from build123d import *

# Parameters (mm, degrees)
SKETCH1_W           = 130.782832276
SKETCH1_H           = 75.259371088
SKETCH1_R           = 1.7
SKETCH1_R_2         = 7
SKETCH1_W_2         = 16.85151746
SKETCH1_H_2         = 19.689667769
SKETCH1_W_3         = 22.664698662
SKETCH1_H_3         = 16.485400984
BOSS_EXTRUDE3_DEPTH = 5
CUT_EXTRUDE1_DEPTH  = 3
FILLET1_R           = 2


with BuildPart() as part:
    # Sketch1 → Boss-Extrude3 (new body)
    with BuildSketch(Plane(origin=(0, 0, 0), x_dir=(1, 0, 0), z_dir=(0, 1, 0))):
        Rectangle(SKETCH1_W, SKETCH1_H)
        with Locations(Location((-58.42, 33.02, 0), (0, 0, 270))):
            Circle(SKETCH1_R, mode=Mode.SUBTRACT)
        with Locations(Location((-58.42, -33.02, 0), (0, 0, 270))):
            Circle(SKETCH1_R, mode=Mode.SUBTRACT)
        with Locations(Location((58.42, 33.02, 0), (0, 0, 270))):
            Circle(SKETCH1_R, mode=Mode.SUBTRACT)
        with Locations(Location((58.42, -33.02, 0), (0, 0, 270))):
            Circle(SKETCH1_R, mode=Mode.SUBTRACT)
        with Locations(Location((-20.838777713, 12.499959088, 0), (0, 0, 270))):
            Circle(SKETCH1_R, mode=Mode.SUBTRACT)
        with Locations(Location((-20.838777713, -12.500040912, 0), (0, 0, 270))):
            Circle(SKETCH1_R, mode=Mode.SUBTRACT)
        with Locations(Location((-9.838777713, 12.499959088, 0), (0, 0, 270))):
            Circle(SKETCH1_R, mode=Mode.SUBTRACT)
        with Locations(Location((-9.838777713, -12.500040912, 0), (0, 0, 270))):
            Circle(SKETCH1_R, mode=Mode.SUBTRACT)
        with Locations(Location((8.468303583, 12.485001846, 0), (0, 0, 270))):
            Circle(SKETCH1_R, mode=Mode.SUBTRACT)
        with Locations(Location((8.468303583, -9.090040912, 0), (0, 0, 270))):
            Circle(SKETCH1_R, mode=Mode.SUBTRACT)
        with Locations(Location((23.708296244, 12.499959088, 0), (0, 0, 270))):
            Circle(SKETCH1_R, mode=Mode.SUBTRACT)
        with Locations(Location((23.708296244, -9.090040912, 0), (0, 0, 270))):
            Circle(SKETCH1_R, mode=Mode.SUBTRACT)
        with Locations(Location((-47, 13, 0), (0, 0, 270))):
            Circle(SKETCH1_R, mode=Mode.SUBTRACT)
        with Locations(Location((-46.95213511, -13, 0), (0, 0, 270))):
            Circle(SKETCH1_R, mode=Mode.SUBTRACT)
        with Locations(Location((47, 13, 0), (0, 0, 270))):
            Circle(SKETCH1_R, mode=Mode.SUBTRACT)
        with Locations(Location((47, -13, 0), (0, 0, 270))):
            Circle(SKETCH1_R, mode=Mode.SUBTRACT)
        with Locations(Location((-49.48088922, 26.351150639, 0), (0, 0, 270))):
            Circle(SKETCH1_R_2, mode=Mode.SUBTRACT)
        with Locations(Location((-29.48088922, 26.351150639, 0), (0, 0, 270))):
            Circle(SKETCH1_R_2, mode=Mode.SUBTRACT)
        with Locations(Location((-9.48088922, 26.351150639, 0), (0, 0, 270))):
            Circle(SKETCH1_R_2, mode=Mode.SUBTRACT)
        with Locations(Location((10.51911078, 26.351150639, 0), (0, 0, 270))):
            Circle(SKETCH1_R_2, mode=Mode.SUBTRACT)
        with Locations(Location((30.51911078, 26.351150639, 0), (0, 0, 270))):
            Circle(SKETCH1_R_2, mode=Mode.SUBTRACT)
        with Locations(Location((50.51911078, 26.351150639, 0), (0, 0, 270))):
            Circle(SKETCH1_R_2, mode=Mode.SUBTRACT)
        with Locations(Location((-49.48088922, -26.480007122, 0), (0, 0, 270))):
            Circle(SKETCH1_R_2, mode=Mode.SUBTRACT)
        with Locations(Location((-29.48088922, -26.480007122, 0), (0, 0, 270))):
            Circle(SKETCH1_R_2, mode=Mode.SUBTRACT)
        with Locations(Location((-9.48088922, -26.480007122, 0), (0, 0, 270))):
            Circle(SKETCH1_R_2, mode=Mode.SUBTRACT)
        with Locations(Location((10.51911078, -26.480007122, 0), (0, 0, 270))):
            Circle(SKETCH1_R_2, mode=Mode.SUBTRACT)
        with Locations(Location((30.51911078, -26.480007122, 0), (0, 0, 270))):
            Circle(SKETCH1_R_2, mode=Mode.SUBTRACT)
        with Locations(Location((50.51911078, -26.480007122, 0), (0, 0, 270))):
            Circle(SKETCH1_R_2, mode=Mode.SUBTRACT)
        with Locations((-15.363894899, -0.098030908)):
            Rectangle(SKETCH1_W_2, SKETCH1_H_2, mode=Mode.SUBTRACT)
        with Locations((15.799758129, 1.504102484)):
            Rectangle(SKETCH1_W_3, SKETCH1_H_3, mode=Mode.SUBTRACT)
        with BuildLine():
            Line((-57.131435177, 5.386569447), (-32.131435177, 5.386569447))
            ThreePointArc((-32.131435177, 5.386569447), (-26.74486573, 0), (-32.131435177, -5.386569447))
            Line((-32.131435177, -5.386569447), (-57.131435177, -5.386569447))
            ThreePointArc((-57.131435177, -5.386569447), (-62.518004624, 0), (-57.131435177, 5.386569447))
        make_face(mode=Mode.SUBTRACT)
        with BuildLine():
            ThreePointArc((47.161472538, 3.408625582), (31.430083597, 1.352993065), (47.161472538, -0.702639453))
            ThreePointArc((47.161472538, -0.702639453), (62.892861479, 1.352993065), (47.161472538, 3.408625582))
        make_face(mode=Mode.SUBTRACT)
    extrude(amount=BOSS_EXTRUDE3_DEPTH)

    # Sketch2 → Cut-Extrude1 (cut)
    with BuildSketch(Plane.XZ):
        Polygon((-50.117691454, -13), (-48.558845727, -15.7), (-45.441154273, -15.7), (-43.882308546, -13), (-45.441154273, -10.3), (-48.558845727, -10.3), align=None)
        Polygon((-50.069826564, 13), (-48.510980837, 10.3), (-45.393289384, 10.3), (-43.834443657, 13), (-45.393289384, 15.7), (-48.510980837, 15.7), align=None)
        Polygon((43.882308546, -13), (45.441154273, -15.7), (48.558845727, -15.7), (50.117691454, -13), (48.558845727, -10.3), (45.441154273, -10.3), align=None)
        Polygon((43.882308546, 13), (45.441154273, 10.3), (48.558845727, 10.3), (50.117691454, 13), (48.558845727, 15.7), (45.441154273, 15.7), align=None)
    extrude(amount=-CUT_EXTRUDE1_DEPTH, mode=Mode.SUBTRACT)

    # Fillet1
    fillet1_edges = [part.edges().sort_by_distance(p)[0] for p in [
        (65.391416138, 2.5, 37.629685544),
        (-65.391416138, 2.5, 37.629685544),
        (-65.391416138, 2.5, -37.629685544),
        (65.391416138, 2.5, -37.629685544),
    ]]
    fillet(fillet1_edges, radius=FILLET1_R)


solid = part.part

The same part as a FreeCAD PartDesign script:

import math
import FreeCAD as App
import Part
import Sketcher
Q = App.Units.Quantity


def edges_at(feature, points):
    """Names of the edges that pass closest to the given points."""
    edges = feature.Shape.Edges
    near = lambda p: min(range(len(edges)), key=lambda i: edges[i].distToShape(Part.Vertex(*p))[0])
    return sorted({f"Edge{near(p) + 1}" for p in points})


def add_polygon(sketch, points):
    """Adds a closed chain of lines whose ends are joined by coincident constraints."""
    first, n = sketch.GeometryCount, len(points)
    for a, b in zip(points, points[1:] + points[:1]):
        sketch.addGeometry(Part.LineSegment(App.Vector(*a, 0), App.Vector(*b, 0)), False)
    for i in range(n):
        sketch.addConstraint(Sketcher.Constraint("Coincident", first + i, 2, first + (i + 1) % n, 1))

doc = App.newDocument("Part")
body = doc.addObject("PartDesign::Body", "Body")

# Sketch on XZ plane
sketch1 = body.newObject("Sketcher::SketchObject", "Sketch")
sketch1.AttachmentSupport = (doc.getObject("XZ_Plane"), [""])
sketch1.MapMode = "FlatFace"
add_polygon(sketch1, [(-65.391416, -37.629686), (-65.391416, 37.629686), (65.391416, 37.629686), (65.391416, -37.629686)])  # lines 0-3
sketch1.addGeometry(Part.Circle(App.Vector(-58.42, 33.02, 0), App.Vector(0, 0, 1), 1.7), False)  # 4
sketch1.addGeometry(Part.Circle(App.Vector(-49.480889, 26.480007, 0), App.Vector(0, 0, 1), 7), False)  # 5
sketch1.addGeometry(Part.Circle(App.Vector(-29.480889, 26.480007, 0), App.Vector(0, 0, 1), 7), False)  # 6
sketch1.addGeometry(Part.Circle(App.Vector(-9.480889, 26.480007, 0), App.Vector(0, 0, 1), 7), False)  # 7
sketch1.addGeometry(Part.Circle(App.Vector(-46.952135, 13, 0), App.Vector(0, 0, 1), 1.7), False)  # 8
sketch1.addGeometry(Part.Circle(App.Vector(-20.838778, 12.500041, 0), App.Vector(0, 0, 1), 1.7), False)  # 9
sketch1.addGeometry(Part.Circle(App.Vector(-9.838778, 12.500041, 0), App.Vector(0, 0, 1), 1.7), False)  # 10
add_polygon(sketch1, [(-6.938136, 9.942865), (-23.789654, 9.942865), (-23.789654, -9.746803), (-6.938136, -9.746803)])  # lines 11-14
sketch1.addGeometry(Part.Circle(App.Vector(10.519111, 26.480007, 0), App.Vector(0, 0, 1), 7), False)  # 15
sketch1.addGeometry(Part.Circle(App.Vector(30.519111, 26.480007, 0), App.Vector(0, 0, 1), 7), False)  # 16
sketch1.addGeometry(Part.Circle(App.Vector(58.42, 33.02, 0), App.Vector(0, 0, 1), 1.7), False)  # 17
sketch1.addGeometry(Part.Circle(App.Vector(50.519111, 26.480007, 0), App.Vector(0, 0, 1), 7), False)  # 18
sketch1.addGeometry(Part.Circle(App.Vector(8.468304, 9.090041, 0), App.Vector(0, 0, 1), 1.7), False)  # 19
sketch1.addGeometry(Part.Circle(App.Vector(23.708296, 9.090041, 0), App.Vector(0, 0, 1), 1.7), False)  # 20
sketch1.addGeometry(Part.Circle(App.Vector(47, 13, 0), App.Vector(0, 0, 1), 1.7), False)  # 21
sketch1.addGeometry(Part.ArcOfCircle(Part.Circle(App.Vector(-57.131435, 0, 0), App.Vector(0, 0, 1), 5.386569), math.radians(90), math.radians(270)), False)  # 22
sketch1.addGeometry(Part.LineSegment(App.Vector(-57.131435, -5.386569, 0), App.Vector(-32.131435, -5.386569, 0)), False)  # 23
sketch1.addGeometry(Part.ArcOfCircle(Part.Circle(App.Vector(-32.131435, 0, 0), App.Vector(0, 0, 1), 5.386569), math.radians(-90), math.radians(90)), False)  # 24
sketch1.addGeometry(Part.LineSegment(App.Vector(-32.131435, 5.386569, 0), App.Vector(-57.131435, 5.386569, 0)), False)  # 25
sketch1.addGeometry(Part.Circle(App.Vector(-47, -13, 0), App.Vector(0, 0, 1), 1.7), False)  # 26
sketch1.addGeometry(Part.Circle(App.Vector(-20.838778, -12.499959, 0), App.Vector(0, 0, 1), 1.7), False)  # 27
sketch1.addGeometry(Part.Circle(App.Vector(-9.838778, -12.499959, 0), App.Vector(0, 0, 1), 1.7), False)  # 28
sketch1.addGeometry(Part.Circle(App.Vector(-49.480889, -26.351151, 0), App.Vector(0, 0, 1), 7), False)  # 29
sketch1.addGeometry(Part.Circle(App.Vector(-58.42, -33.02, 0), App.Vector(0, 0, 1), 1.7), False)  # 30
sketch1.addGeometry(Part.Circle(App.Vector(-29.480889, -26.351151, 0), App.Vector(0, 0, 1), 7), False)  # 31
sketch1.addGeometry(Part.Circle(App.Vector(-9.480889, -26.351151, 0), App.Vector(0, 0, 1), 7), False)  # 32
add_polygon(sketch1, [(27.132107, 6.738598), (4.467409, 6.738598), (4.467409, -9.746803), (27.132107, -9.746803)])  # lines 33-36
sketch1.addGeometry(Part.Circle(App.Vector(8.468304, -12.485002, 0), App.Vector(0, 0, 1), 1.7), False)  # 37
sketch1.addGeometry(Part.Circle(App.Vector(23.708296, -12.499959, 0), App.Vector(0, 0, 1), 1.7), False)  # 38
sketch1.addGeometry(Part.ArcOfCircle(Part.Circle(App.Vector(39.430084, -1.352993, 0), App.Vector(0, 0, 1), 8), math.radians(14.889404), math.radians(345.110596)), False)  # 39
sketch1.addGeometry(Part.ArcOfCircle(Part.Circle(App.Vector(54.892861, -1.352993, 0), App.Vector(0, 0, 1), 8), math.radians(-165.110596), math.radians(165.110596)), False)  # 40
sketch1.addGeometry(Part.Circle(App.Vector(47, -13, 0), App.Vector(0, 0, 1), 1.7), False)  # 41
sketch1.addGeometry(Part.Circle(App.Vector(10.519111, -26.351151, 0), App.Vector(0, 0, 1), 7), False)  # 42
sketch1.addGeometry(Part.Circle(App.Vector(30.519111, -26.351151, 0), App.Vector(0, 0, 1), 7), False)  # 43
sketch1.addGeometry(Part.Circle(App.Vector(50.519111, -26.351151, 0), App.Vector(0, 0, 1), 7), False)  # 44
sketch1.addGeometry(Part.Circle(App.Vector(58.42, -33.02, 0), App.Vector(0, 0, 1), 1.7), False)  # 45
sketch1.addConstraint(Sketcher.Constraint("Tangent", 22, 2, 23, 1))
sketch1.addConstraint(Sketcher.Constraint("Tangent", 23, 2, 24, 1))
sketch1.addConstraint(Sketcher.Constraint("Tangent", 24, 2, 25, 1))
sketch1.addConstraint(Sketcher.Constraint("Tangent", 25, 2, 22, 1))
sketch1.addConstraint(Sketcher.Constraint("Coincident", 39, 1, 40, 2))
sketch1.addConstraint(Sketcher.Constraint("Coincident", 40, 1, 39, 2))
sketch1.addConstraint(Sketcher.Constraint("Vertical", 0))
sketch1.addConstraint(Sketcher.Constraint("Horizontal", 1))
sketch1.addConstraint(Sketcher.Constraint("Vertical", 2))
sketch1.addConstraint(Sketcher.Constraint("Horizontal", 3))
sketch1.addConstraint(Sketcher.Constraint("Horizontal", 11))
sketch1.addConstraint(Sketcher.Constraint("Vertical", 12))
sketch1.addConstraint(Sketcher.Constraint("Horizontal", 13))
sketch1.addConstraint(Sketcher.Constraint("Vertical", 14))
sketch1.addConstraint(Sketcher.Constraint("Horizontal", 23))
sketch1.addConstraint(Sketcher.Constraint("Horizontal", 25))
sketch1.addConstraint(Sketcher.Constraint("Horizontal", 33))
sketch1.addConstraint(Sketcher.Constraint("Vertical", 34))
sketch1.addConstraint(Sketcher.Constraint("Horizontal", 35))
sketch1.addConstraint(Sketcher.Constraint("Vertical", 36))
sketch1.addConstraint(Sketcher.Constraint("Equal", 5, 6))
sketch1.addConstraint(Sketcher.Constraint("Equal", 6, 7))
sketch1.addConstraint(Sketcher.Constraint("Equal", 4, 8))
sketch1.addConstraint(Sketcher.Constraint("Equal", 8, 9))
sketch1.addConstraint(Sketcher.Constraint("Equal", 9, 10))
sketch1.addConstraint(Sketcher.Constraint("Equal", 7, 15))
sketch1.addConstraint(Sketcher.Constraint("Equal", 15, 16))
sketch1.addConstraint(Sketcher.Constraint("Equal", 10, 17))
sketch1.addConstraint(Sketcher.Constraint("Equal", 16, 18))
sketch1.addConstraint(Sketcher.Constraint("Equal", 17, 19))
sketch1.addConstraint(Sketcher.Constraint("Equal", 19, 20))
sketch1.addConstraint(Sketcher.Constraint("Equal", 20, 21))
sketch1.addConstraint(Sketcher.Constraint("Equal", 21, 26))
sketch1.addConstraint(Sketcher.Constraint("Equal", 26, 27))
sketch1.addConstraint(Sketcher.Constraint("Equal", 27, 28))
sketch1.addConstraint(Sketcher.Constraint("Equal", 18, 29))
sketch1.addConstraint(Sketcher.Constraint("Equal", 28, 30))
sketch1.addConstraint(Sketcher.Constraint("Equal", 29, 31))
sketch1.addConstraint(Sketcher.Constraint("Equal", 31, 32))
sketch1.addConstraint(Sketcher.Constraint("Equal", 30, 37))
sketch1.addConstraint(Sketcher.Constraint("Equal", 37, 38))
sketch1.addConstraint(Sketcher.Constraint("Equal", 39, 40))
sketch1.addConstraint(Sketcher.Constraint("Equal", 38, 41))
sketch1.addConstraint(Sketcher.Constraint("Equal", 32, 42))
sketch1.addConstraint(Sketcher.Constraint("Equal", 42, 43))
sketch1.addConstraint(Sketcher.Constraint("Equal", 43, 44))
sketch1.addConstraint(Sketcher.Constraint("Equal", 41, 45))
sketch1.addConstraint(Sketcher.Constraint("Symmetric", 21, 3, 26, 3, -1, 1))
sketch1.addConstraint(Sketcher.Constraint("Symmetric", 17, 3, 30, 3, -1, 1))
sketch1.addConstraint(Sketcher.Constraint("Symmetric", 4, 3, 45, 3, -1, 1))
sketch1.addConstraint(Sketcher.Constraint("Symmetric", 0, 2, 2, 2, -1, 1))
sketch1.addConstraint(Sketcher.Constraint("Symmetric", 4, 3, 17, 3, -2))
sketch1.addConstraint(Sketcher.Constraint("Symmetric", 26, 3, 41, 3, -2))
sketch1.addConstraint(Sketcher.Constraint("PointOnObject", 22, 3, -1))
sketch1.addConstraint(Sketcher.Constraint("Horizontal", 5, 3, 6, 3))
sketch1.addConstraint(Sketcher.Constraint("Horizontal", 6, 3, 7, 3))
sketch1.addConstraint(Sketcher.Constraint("Horizontal", 9, 3, 10, 3))
sketch1.addConstraint(Sketcher.Constraint("Horizontal", 7, 3, 15, 3))
sketch1.addConstraint(Sketcher.Constraint("Horizontal", 15, 3, 16, 3))
sketch1.addConstraint(Sketcher.Constraint("Horizontal", 16, 3, 18, 3))
sketch1.addConstraint(Sketcher.Constraint("Horizontal", 19, 3, 20, 3))
sketch1.addConstraint(Sketcher.Constraint("Horizontal", 8, 3, 21, 3))
sketch1.addConstraint(Sketcher.Constraint("Horizontal", 27, 3, 28, 3))
sketch1.addConstraint(Sketcher.Constraint("Horizontal", 29, 3, 31, 3))
sketch1.addConstraint(Sketcher.Constraint("Horizontal", 31, 3, 32, 3))
sketch1.addConstraint(Sketcher.Constraint("Horizontal", 28, 3, 38, 3))
sketch1.addConstraint(Sketcher.Constraint("Horizontal", 39, 3, 40, 3))
sketch1.addConstraint(Sketcher.Constraint("Horizontal", 32, 3, 42, 3))
sketch1.addConstraint(Sketcher.Constraint("Horizontal", 42, 3, 43, 3))
sketch1.addConstraint(Sketcher.Constraint("Horizontal", 43, 3, 44, 3))
sketch1.addConstraint(Sketcher.Constraint("Horizontal", 13, 2, 34, 2))
sketch1.addConstraint(Sketcher.Constraint("Vertical", 9, 3, 27, 3))
sketch1.addConstraint(Sketcher.Constraint("Vertical", 10, 3, 28, 3))
sketch1.addConstraint(Sketcher.Constraint("Vertical", 5, 3, 29, 3))
sketch1.addConstraint(Sketcher.Constraint("Vertical", 6, 3, 31, 3))
sketch1.addConstraint(Sketcher.Constraint("Vertical", 7, 3, 32, 3))
sketch1.addConstraint(Sketcher.Constraint("Vertical", 19, 3, 37, 3))
sketch1.addConstraint(Sketcher.Constraint("Vertical", 20, 3, 38, 3))
sketch1.addConstraint(Sketcher.Constraint("Vertical", 15, 3, 42, 3))
sketch1.addConstraint(Sketcher.Constraint("Vertical", 16, 3, 43, 3))
sketch1.addConstraint(Sketcher.Constraint("Vertical", 18, 3, 44, 3))
sketch1.addConstraint(Sketcher.Constraint("Diameter", 5, Q("14 mm")))
sketch1.addConstraint(Sketcher.Constraint("Radius", 39, Q("8 mm")))
sketch1.addConstraint(Sketcher.Constraint("Diameter", 4, Q("3.4 mm")))
sketch1.addConstraint(Sketcher.Constraint("DistanceX", 23, 1, 23, 2, Q("25 mm")))
sketch1.addConstraint(Sketcher.Constraint("DistanceY", -1, 1, 8, 3, Q("13 mm")))
sketch1.addConstraint(Sketcher.Constraint("DistanceX", -1, 1, 21, 3, Q("47 mm")))
sketch1.addConstraint(Sketcher.Constraint("DistanceX", 5, 3, 6, 3, Q("20 mm")))
sketch1.addConstraint(Sketcher.Constraint("DistanceX", 6, 3, 7, 3, Q("20 mm")))
sketch1.addConstraint(Sketcher.Constraint("DistanceX", 9, 3, 10, 3, Q("11 mm")))
sketch1.addConstraint(Sketcher.Constraint("DistanceX", 7, 3, 15, 3, Q("20 mm")))
sketch1.addConstraint(Sketcher.Constraint("DistanceX", 15, 3, 16, 3, Q("20 mm")))
sketch1.addConstraint(Sketcher.Constraint("DistanceX", 16, 3, 18, 3, Q("20 mm")))
sketch1.addConstraint(Sketcher.Constraint("DistanceY", 27, 3, 9, 3, Q("25 mm")))
sketch1.addConstraint(Sketcher.Constraint("DistanceX", 4, 3, -1, 1, Q("58.42 mm")))
sketch1.addConstraint(Sketcher.Constraint("DistanceY", -1, 1, 4, 3, Q("33.02 mm")))
sketch1.addConstraint(Sketcher.Constraint("Radius", 22, Q("5.386569 mm")))
sketch1.addConstraint(Sketcher.Constraint("DistanceY", 19, 3, 10, 3, Q("3.41 mm")))
sketch1.addConstraint(Sketcher.Constraint("DistanceX", 33, 2, 33, 1, Q("22.664699 mm")))
sketch1.addConstraint(Sketcher.Constraint("DistanceY", 34, 2, 34, 1, Q("16.485401 mm")))
sketch1.addConstraint(Sketcher.Constraint("DistanceY", 37, 3, -1, 1, Q("12.485002 mm")))
sketch1.addConstraint(Sketcher.Constraint("DistanceY", 39, 3, 16, 3, Q("27.833 mm")))
sketch1.addConstraint(Sketcher.Constraint("DistanceY", 0, 1, 0, 2, Q("75.259371 mm")))
sketch1.addConstraint(Sketcher.Constraint("DistanceY", -1, 1, 33, 2, Q("6.738598 mm")))
sketch1.addConstraint(Sketcher.Constraint("DistanceX", 22, 3, 8, 3, Q("10.1793 mm")))
sketch1.addConstraint(Sketcher.Constraint("DistanceX", 34, 2, 42, 3, Q("6.051702 mm")))
sketch1.addConstraint(Sketcher.Constraint("DistanceX", 1, 1, 1, 2, Q("130.782832 mm")))
sketch1.addConstraint(Sketcher.Constraint("DistanceX", 11, 2, 11, 1, Q("16.851517 mm")))
sketch1.addConstraint(Sketcher.Constraint("DistanceY", 12, 2, 12, 1, Q("19.689668 mm")))
sketch1.addConstraint(Sketcher.Constraint("DistanceX", 5, 3, -1, 1, Q("49.480889 mm")))
sketch1.addConstraint(Sketcher.Constraint("DistanceY", -1, 1, 9, 3, Q("12.500041 mm")))
sketch1.addConstraint(Sketcher.Constraint("DistanceY", 29, 3, -1, 1, Q("26.351151 mm")))
sketch1.addConstraint(Sketcher.Constraint("DistanceX", -1, 1, 40, 3, Q("54.892861 mm")))
sketch1.addConstraint(Sketcher.Constraint("DistanceY", -1, 1, 39, 1, Q("0.702639 mm")))
sketch1.addConstraint(Sketcher.Constraint("DistanceX", 6, 3, 9, 3, Q("8.642112 mm")))
sketch1.addConstraint(Sketcher.Constraint("DistanceX", 10, 3, 19, 3, Q("18.307081 mm")))
sketch1.addConstraint(Sketcher.Constraint("DistanceY", 5, 3, 0, 2, Q("11.149678 mm")))
sketch1.addConstraint(Sketcher.Constraint("DistanceX", 0, 2, 8, 3, Q("18.439281 mm")))
sketch1.addConstraint(Sketcher.Constraint("DistanceX", 24, 3, 11, 2, Q("8.341782 mm")))
sketch1.addConstraint(Sketcher.Constraint("DistanceX", 38, 3, 35, 2, Q("3.423811 mm")))
pad1 = body.newObject("PartDesign::Pad", "Pad")
pad1.Profile = sketch1
pad1.Length = 5
pad1.Reversed = True

# Sketch on XZ plane
sketch2 = body.newObject("Sketcher::SketchObject", "Sketch001")
sketch2.AttachmentSupport = (doc.getObject("XZ_Plane"), [""])
sketch2.MapMode = "FlatFace"
add_polygon(sketch2, [(-50.117691, -13), (-48.558846, -15.7), (-45.441154, -15.7), (-43.882309, -13), (-45.441154, -10.3), (-48.558846, -10.3)])  # lines 0-5
add_polygon(sketch2, [(-50.069827, 13), (-48.510981, 10.3), (-45.393289, 10.3), (-43.834444, 13), (-45.393289, 15.7), (-48.510981, 15.7)])  # lines 6-11
add_polygon(sketch2, [(43.882309, -13), (45.441154, -15.7), (48.558846, -15.7), (50.117691, -13), (48.558846, -10.3), (45.441154, -10.3)])  # lines 12-17
add_polygon(sketch2, [(43.882309, 13), (45.441154, 10.3), (48.558846, 10.3), (50.117691, 13), (48.558846, 15.7), (45.441154, 15.7)])  # lines 18-23
sketch2.addConstraint(Sketcher.Constraint("Horizontal", 1))
sketch2.addConstraint(Sketcher.Constraint("Horizontal", 4))
sketch2.addConstraint(Sketcher.Constraint("Horizontal", 7))
sketch2.addConstraint(Sketcher.Constraint("Horizontal", 10))
sketch2.addConstraint(Sketcher.Constraint("Horizontal", 13))
sketch2.addConstraint(Sketcher.Constraint("Horizontal", 16))
sketch2.addConstraint(Sketcher.Constraint("Horizontal", 19))
sketch2.addConstraint(Sketcher.Constraint("Horizontal", 22))
sketch2.addConstraint(Sketcher.Constraint("Symmetric", 3, 2, 18, 2, -1, 1))
sketch2.addConstraint(Sketcher.Constraint("Symmetric", 5, 2, 20, 2, -1, 1))
sketch2.addConstraint(Sketcher.Constraint("Symmetric", 0, 2, 21, 2, -1, 1))
sketch2.addConstraint(Sketcher.Constraint("Symmetric", 2, 2, 23, 2, -1, 1))
sketch2.addConstraint(Sketcher.Constraint("Symmetric", 1, 2, 12, 2, -2))
sketch2.addConstraint(Sketcher.Constraint("Symmetric", 5, 2, 14, 2, -2))
sketch2.addConstraint(Sketcher.Constraint("Symmetric", 4, 2, 15, 2, -2))
sketch2.addConstraint(Sketcher.Constraint("Symmetric", 2, 2, 17, 2, -2))
sketch2.addConstraint(Sketcher.Constraint("Parallel", 0, 3))
sketch2.addConstraint(Sketcher.Constraint("Parallel", 2, 5))
sketch2.addConstraint(Sketcher.Constraint("Parallel", 3, 6))
sketch2.addConstraint(Sketcher.Constraint("Parallel", 5, 8))
sketch2.addConstraint(Sketcher.Constraint("Parallel", 6, 9))
sketch2.addConstraint(Sketcher.Constraint("Parallel", 8, 11))
sketch2.addConstraint(Sketcher.Constraint("Parallel", 9, 12))
sketch2.addConstraint(Sketcher.Constraint("Parallel", 11, 14))
sketch2.addConstraint(Sketcher.Constraint("Parallel", 14, 17))
sketch2.addConstraint(Sketcher.Constraint("Parallel", 17, 20))
sketch2.addConstraint(Sketcher.Constraint("Parallel", 20, 23))
sketch2.addConstraint(Sketcher.Constraint("Horizontal", 2, 2, 5, 2))
sketch2.addConstraint(Sketcher.Constraint("Horizontal", 8, 2, 11, 2))
sketch2.addConstraint(Sketcher.Constraint("Horizontal", 7, 2, 18, 2))
sketch2.addConstraint(Sketcher.Constraint("Horizontal", 11, 2, 20, 2))
sketch2.addConstraint(Sketcher.Constraint("Horizontal", 10, 2, 21, 2))
sketch2.addConstraint(Sketcher.Constraint("Vertical", 1, 2, 3, 2))
sketch2.addConstraint(Sketcher.Constraint("Equal", 4, 7))
sketch2.addConstraint(Sketcher.Constraint("Angle", 0, Q("-60 deg")))
sketch2.addConstraint(Sketcher.Constraint("DistanceY", 2, 2, -1, 1, Q("13 mm")))
sketch2.addConstraint(Sketcher.Constraint("DistanceX", 0, 2, 12, 2, Q("94 mm")))
sketch2.addConstraint(Sketcher.Constraint("DistanceY", 0, 2, -1, 1, Q("15.7 mm")))
sketch2.addConstraint(Sketcher.Constraint("DistanceX", 1, 1, 1, 2, Q("3.117691 mm")))
sketch2.addConstraint(Sketcher.Constraint("DistanceX", 6, 2, -1, 1, Q("48.510981 mm")))
pocket1 = body.newObject("PartDesign::Pocket", "Pocket")
pocket1.Profile = sketch2
pocket1.Length = 3
doc.recompute()

fillet = body.newObject("PartDesign::Fillet", "Fillet")
fillet.Base = (pocket1, edges_at(pocket1, [
    (65.391, 2.5, 37.63),
    (-65.391, 2.5, 37.63),
    (-65.391, 2.5, -37.63),
    (65.391, 2.5, -37.63),
]))
fillet.Radius = 2

doc.recompute()
